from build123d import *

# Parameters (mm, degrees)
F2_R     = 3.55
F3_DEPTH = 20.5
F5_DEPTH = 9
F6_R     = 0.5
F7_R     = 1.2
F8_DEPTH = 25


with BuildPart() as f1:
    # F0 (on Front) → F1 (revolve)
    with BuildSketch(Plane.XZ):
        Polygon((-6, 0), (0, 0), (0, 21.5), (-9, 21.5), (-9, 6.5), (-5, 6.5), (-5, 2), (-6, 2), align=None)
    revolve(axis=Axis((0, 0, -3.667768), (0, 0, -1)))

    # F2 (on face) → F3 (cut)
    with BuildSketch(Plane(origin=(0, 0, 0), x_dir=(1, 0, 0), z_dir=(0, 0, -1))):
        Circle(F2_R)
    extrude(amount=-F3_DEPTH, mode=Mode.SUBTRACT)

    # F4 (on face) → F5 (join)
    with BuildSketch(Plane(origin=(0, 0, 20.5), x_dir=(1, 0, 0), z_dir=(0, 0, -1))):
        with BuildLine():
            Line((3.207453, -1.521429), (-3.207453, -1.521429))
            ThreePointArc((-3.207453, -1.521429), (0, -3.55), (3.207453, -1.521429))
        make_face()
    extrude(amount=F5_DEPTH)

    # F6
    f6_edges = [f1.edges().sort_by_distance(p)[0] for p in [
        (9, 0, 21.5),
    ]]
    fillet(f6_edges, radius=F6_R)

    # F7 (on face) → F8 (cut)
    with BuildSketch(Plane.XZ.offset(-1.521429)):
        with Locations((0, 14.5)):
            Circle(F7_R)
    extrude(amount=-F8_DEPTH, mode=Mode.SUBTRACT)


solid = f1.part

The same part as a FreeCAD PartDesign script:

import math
import FreeCAD as App
import Part
import Sketcher
Q = App.Units.Quantity


def edges_at(feature, points):
    """Names of the edges that pass closest to the given points."""
    edges = feature.Shape.Edges
    near = lambda p: min(range(len(edges)), key=lambda i: edges[i].distToShape(Part.Vertex(*p))[0])
    return sorted({f"Edge{near(p) + 1}" for p in points})

doc = App.newDocument("Part")
body = doc.addObject("PartDesign::Body", "Body")

# Sketch on XZ plane
sketch1 = body.newObject("Sketcher::SketchObject", "Sketch")
sketch1.AttachmentSupport = (doc.getObject("XZ_Plane"), [""])
sketch1.MapMode = "FlatFace"
sketch1.addGeometry([
    Part.LineSegment(App.Vector(-6, 0, 0), App.Vector(0, 0, 0)),  # 0
    Part.LineSegment(App.Vector(0, 0, 0), App.Vector(0, 21.5, 0)),  # 1
    Part.LineSegment(App.Vector(0, 21.5, 0), App.Vector(-9, 21.5, 0)),  # 2
    Part.LineSegment(App.Vector(-9, 21.5, 0), App.Vector(-9, 6.5, 0)),  # 3
    Part.LineSegment(App.Vector(-9, 6.5, 0), App.Vector(-5, 6.5, 0)),  # 4
    Part.LineSegment(App.Vector(-5, 6.5, 0), App.Vector(-5, 2, 0)),  # 5
    Part.LineSegment(App.Vector(-5, 2, 0), App.Vector(-6, 2, 0)),  # 6
    Part.LineSegment(App.Vector(-6, 2, 0), App.Vector(-6, 0, 0)),  # 7
], False)
sketch1.addConstraint([
    Sketcher.Constraint("Coincident", 0, 2, 1, 1),
    Sketcher.Constraint("Coincident", 1, 2, 2, 1),
    Sketcher.Constraint("Coincident", 2, 2, 3, 1),
    Sketcher.Constraint("Coincident", 3, 2, 4, 1),
    Sketcher.Constraint("Coincident", 4, 2, 5, 1),
    Sketcher.Constraint("Coincident", 5, 2, 6, 1),
    Sketcher.Constraint("Coincident", 6, 2, 7, 1),
    Sketcher.Constraint("Coincident", 7, 2, 0, 1),
    Sketcher.Constraint("Horizontal", 0),
    Sketcher.Constraint("Vertical", 1),
    Sketcher.Constraint("Horizontal", 2),
    Sketcher.Constraint("Vertical", 3),
    Sketcher.Constraint("Horizontal", 4),
    Sketcher.Constraint("Vertical", 5),
    Sketcher.Constraint("Horizontal", 6),
    Sketcher.Constraint("Vertical", 7),
    Sketcher.Constraint("Coincident", 0, 2, -1, 1),
    Sketcher.Constraint("DistanceX", 0, 1, 0, 2, Q("6 mm")),
    Sketcher.Constraint("DistanceX", 2, 2, 2, 1, Q("9 mm")),
    Sketcher.Constraint("DistanceX", 4, 1, 4, 2, Q("4 mm")),
    Sketcher.Constraint("DistanceY", 3, 2, 3, 1, Q("15 mm")),
    Sketcher.Constraint("DistanceY", 7, 2, 7, 1, Q("2 mm")),
    Sketcher.Constraint("DistanceY", 1, 1, 1, 2, Q("21.5 mm")),
])
revolution = body.newObject("PartDesign::Revolution", "Revolution")
revolution.Profile = sketch1
revolution.ReferenceAxis = (sketch1, ["V_Axis"])
revolution.Angle = 360

# Sketch on XY plane
sketch2 = body.newObject("Sketcher::SketchObject", "Sketch001")
sketch2.AttachmentSupport = (doc.getObject("XY_Plane"), [""])
sketch2.MapMode = "FlatFace"
sketch2.addGeometry(Part.Circle(App.Vector(0, 0, 0), App.Vector(0, 0, 1), 3.5), False)
sketch2.addConstraint([
    Sketcher.Constraint("Coincident", 0, 3, -1, 1),
    Sketcher.Constraint("Diameter", 0, Q("7.1 mm")),
])
pocket1 = body.newObject("PartDesign::Pocket", "Pocket")
pocket1.Profile = sketch2
pocket1.Length = 20.5
pocket1.Reversed = True

# Sketch on XY plane
sketch3 = body.newObject("Sketcher::SketchObject", "Sketch002")
sketch3.AttachmentSupport = (doc.getObject("XY_Plane"), [""])
sketch3.MapMode = "FlatFace"
sketch3.AttachmentOffset = App.Placement(App.Vector(0, 0, 20.5), App.Rotation())
sketch3.addGeometry([
    Part.LineSegment(App.Vector(3.2, 1.5, 0), App.Vector(-3.2, 1.5, 0)),
    Part.ArcOfCircle(Part.Circle(App.Vector(0, 0, 0), App.Vector(0, 0, 1), 3.6), math.radians(25), math.radians(155)),
], False)
sketch3.addConstraint([
    Sketcher.Constraint("Coincident", 0, 1, 1, 1),
    Sketcher.Constraint("Coincident", 1, 2, 0, 2),
    Sketcher.Constraint("Horizontal", 0),
    Sketcher.Constraint("Coincident", 1, 3, -1, 1),
    Sketcher.Constraint("Radius", 1, Q("3.55 mm")),
    Sketcher.Constraint("DistanceX", 0, 2, 0, 1, Q("6.414906 mm")),
])
pad1 = body.newObject("PartDesign::Pad", "Pad")
pad1.Profile = sketch3
pad1.Length = 9
pad1.Reversed = True
doc.recompute()

fillet = body.newObject("PartDesign::Fillet", "Fillet")
fillet.Base = (pad1, edges_at(pad1, [(9, 0, 21.5)]))
fillet.Radius = 0.5

# Sketch on XZ plane
sketch4 = body.newObject("Sketcher::SketchObject", "Sketch003")
sketch4.AttachmentSupport = (doc.getObject("XZ_Plane"), [""])
sketch4.MapMode = "FlatFace"
sketch4.AttachmentOffset = App.Placement(App.Vector(0, 0, -1.521429), App.Rotation())
sketch4.addGeometry(Part.Circle(App.Vector(0, 14.5, 0), App.Vector(0, 0, 1), 1.2), False)
sketch4.addConstraint([
    Sketcher.Constraint("PointOnObject", 0, 3, -2),
    Sketcher.Constraint("Diameter", 0, Q("2.4 mm")),
    Sketcher.Constraint("DistanceY", -1, 1, 0, 3, Q("14.5 mm")),
])
pocket2 = body.newObject("PartDesign::Pocket", "Pocket001")
pocket2.Profile = sketch4
pocket2.Length = 25

doc.recompute()
